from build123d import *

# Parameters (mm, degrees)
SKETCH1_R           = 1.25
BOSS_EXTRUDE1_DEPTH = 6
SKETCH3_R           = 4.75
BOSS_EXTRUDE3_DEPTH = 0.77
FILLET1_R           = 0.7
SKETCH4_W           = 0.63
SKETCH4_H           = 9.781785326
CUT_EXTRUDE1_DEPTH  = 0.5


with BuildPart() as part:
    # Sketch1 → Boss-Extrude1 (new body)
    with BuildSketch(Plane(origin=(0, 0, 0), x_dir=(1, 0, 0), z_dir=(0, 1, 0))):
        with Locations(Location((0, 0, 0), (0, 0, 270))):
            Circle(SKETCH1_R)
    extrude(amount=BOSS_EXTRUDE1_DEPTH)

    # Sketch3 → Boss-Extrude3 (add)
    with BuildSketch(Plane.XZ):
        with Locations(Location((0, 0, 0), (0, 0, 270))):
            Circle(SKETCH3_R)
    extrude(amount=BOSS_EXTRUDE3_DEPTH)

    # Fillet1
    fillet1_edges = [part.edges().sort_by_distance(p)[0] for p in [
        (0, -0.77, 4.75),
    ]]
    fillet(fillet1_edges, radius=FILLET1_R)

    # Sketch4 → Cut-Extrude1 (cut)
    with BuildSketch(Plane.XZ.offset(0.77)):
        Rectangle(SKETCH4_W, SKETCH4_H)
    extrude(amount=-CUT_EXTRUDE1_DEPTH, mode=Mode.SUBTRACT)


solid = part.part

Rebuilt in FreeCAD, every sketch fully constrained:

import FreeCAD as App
import Part
import Sketcher

V = App.Vector
Q = App.Units.Quantity


def edges_at(feature, points):
    """Names of the edges that pass closest to the given points."""
    edges = feature.Shape.Edges
    near = lambda p: min(range(len(edges)), key=lambda i: edges[i].distToShape(Part.Vertex(*p))[0])
    return sorted({f"Edge{near(p) + 1}" for p in points})

doc = App.newDocument("Part")
params = doc.addObject("Spreadsheet::Sheet", "Params")
for row, (alias, value) in enumerate([
    ("sketch1_diameter", "2.5 mm"),
    ("pad1_length", "6 mm"),
    ("sketch2_diameter", "9.5 mm"),
    ("pad2_length", "0.77 mm"),
    ("fillet_radius", "0.7 mm"),
    ("sketch3_width", "0.63 mm"),
    ("pocket1_length", "0.5 mm"),
], start=1):
    params.set(f"A{row}", alias)
    params.set(f"B{row}", "=" + value)
    params.setAlias(f"B{row}", alias)

body = doc.addObject("PartDesign::Body", "Body")

sketch1 = body.newObject("Sketcher::SketchObject", "Sketch")
sketch1.AttachmentSupport = (doc.getObject("XZ_Plane"), [""])
sketch1.MapMode = "FlatFace"
sketch1.addGeometry(Part.Circle(V(0, 0, 0), V(0, 0, 1), 1.2), False)
sketch1.addConstraint([
    Sketcher.Constraint("Coincident", 0, 3, -1, 1),
    Sketcher.Constraint("Diameter", 0, Q("2.5 mm")),
])
sketch1.setExpression("Constraints[1]", "Params.sketch1_diameter")
pad1 = body.newObject("PartDesign::Pad", "Pad")
pad1.Profile = sketch1
pad1.setExpression("Length", "Params.pad1_length")
pad1.Reversed = True

sketch2 = body.newObject("Sketcher::SketchObject", "Sketch001")
sketch2.AttachmentSupport = (doc.getObject("XZ_Plane"), [""])
sketch2.MapMode = "FlatFace"
sketch2.addGeometry(Part.Circle(V(0, 0, 0), V(0, 0, 1), 4.8), False)
sketch2.addConstraint([
    Sketcher.Constraint("Coincident", 0, 3, -1, 1),
    Sketcher.Constraint("Diameter", 0, Q("9.5 mm")),
])
sketch2.setExpression("Constraints[1]", "Params.sketch2_diameter")
pad2 = body.newObject("PartDesign::Pad", "Pad001")
pad2.Profile = sketch2
pad2.setExpression("Length", "Params.pad2_length")
doc.recompute()

fillet = body.newObject("PartDesign::Fillet", "Fillet")
fillet.Base = (pad2, edges_at(pad2, [(0, -0.77, 4.75)]))
fillet.setExpression("Radius", "Params.fillet_radius")

sketch3 = body.newObject("Sketcher::SketchObject", "Sketch002")
sketch3.AttachmentSupport = (doc.getObject("XZ_Plane"), [""])
sketch3.MapMode = "FlatFace"
sketch3.AttachmentOffset = App.Placement(V(0, 0, 0.77), App.Rotation())
sketch3.addGeometry([
    Part.LineSegment(V(-0.3, 4.9, 0), V(-0.3, -4.9, 0)),
    Part.LineSegment(V(-0.3, -4.9, 0), V(0.3, -4.9, 0)),
    Part.LineSegment(V(0.3, -4.9, 0), V(0.3, 4.9, 0)),
    Part.LineSegment(V(0.3, 4.9, 0), V(-0.3, 4.9, 0)),
], False)
sketch3.addConstraint([
    Sketcher.Constraint("Coincident", 0, 2, 1, 1),
    Sketcher.Constraint("Coincident", 1, 2, 2, 1),
    Sketcher.Constraint("Coincident", 2, 2, 3, 1),
    Sketcher.Constraint("Coincident", 3, 2, 0, 1),
    Sketcher.Constraint("Vertical", 0),
    Sketcher.Constraint("Horizontal", 1),
    Sketcher.Constraint("Vertical", 2),
    Sketcher.Constraint("Horizontal", 3),
    Sketcher.Constraint("Symmetric", 0, 2, 2, 2, -1, 1),
    Sketcher.Constraint("DistanceX", 1, 1, 1, 2, Q("0.63 mm")),
    Sketcher.Constraint("DistanceY", 0, 2, 0, 1, Q("9.781785 mm")),
])
sketch3.setExpression("Constraints[9]", "Params.sketch3_width")
pocket1 = body.newObject("PartDesign::Pocket", "Pocket")
pocket1.Profile = sketch3
pocket1.setExpression("Length", "Params.pocket1_length")

doc.recompute()
